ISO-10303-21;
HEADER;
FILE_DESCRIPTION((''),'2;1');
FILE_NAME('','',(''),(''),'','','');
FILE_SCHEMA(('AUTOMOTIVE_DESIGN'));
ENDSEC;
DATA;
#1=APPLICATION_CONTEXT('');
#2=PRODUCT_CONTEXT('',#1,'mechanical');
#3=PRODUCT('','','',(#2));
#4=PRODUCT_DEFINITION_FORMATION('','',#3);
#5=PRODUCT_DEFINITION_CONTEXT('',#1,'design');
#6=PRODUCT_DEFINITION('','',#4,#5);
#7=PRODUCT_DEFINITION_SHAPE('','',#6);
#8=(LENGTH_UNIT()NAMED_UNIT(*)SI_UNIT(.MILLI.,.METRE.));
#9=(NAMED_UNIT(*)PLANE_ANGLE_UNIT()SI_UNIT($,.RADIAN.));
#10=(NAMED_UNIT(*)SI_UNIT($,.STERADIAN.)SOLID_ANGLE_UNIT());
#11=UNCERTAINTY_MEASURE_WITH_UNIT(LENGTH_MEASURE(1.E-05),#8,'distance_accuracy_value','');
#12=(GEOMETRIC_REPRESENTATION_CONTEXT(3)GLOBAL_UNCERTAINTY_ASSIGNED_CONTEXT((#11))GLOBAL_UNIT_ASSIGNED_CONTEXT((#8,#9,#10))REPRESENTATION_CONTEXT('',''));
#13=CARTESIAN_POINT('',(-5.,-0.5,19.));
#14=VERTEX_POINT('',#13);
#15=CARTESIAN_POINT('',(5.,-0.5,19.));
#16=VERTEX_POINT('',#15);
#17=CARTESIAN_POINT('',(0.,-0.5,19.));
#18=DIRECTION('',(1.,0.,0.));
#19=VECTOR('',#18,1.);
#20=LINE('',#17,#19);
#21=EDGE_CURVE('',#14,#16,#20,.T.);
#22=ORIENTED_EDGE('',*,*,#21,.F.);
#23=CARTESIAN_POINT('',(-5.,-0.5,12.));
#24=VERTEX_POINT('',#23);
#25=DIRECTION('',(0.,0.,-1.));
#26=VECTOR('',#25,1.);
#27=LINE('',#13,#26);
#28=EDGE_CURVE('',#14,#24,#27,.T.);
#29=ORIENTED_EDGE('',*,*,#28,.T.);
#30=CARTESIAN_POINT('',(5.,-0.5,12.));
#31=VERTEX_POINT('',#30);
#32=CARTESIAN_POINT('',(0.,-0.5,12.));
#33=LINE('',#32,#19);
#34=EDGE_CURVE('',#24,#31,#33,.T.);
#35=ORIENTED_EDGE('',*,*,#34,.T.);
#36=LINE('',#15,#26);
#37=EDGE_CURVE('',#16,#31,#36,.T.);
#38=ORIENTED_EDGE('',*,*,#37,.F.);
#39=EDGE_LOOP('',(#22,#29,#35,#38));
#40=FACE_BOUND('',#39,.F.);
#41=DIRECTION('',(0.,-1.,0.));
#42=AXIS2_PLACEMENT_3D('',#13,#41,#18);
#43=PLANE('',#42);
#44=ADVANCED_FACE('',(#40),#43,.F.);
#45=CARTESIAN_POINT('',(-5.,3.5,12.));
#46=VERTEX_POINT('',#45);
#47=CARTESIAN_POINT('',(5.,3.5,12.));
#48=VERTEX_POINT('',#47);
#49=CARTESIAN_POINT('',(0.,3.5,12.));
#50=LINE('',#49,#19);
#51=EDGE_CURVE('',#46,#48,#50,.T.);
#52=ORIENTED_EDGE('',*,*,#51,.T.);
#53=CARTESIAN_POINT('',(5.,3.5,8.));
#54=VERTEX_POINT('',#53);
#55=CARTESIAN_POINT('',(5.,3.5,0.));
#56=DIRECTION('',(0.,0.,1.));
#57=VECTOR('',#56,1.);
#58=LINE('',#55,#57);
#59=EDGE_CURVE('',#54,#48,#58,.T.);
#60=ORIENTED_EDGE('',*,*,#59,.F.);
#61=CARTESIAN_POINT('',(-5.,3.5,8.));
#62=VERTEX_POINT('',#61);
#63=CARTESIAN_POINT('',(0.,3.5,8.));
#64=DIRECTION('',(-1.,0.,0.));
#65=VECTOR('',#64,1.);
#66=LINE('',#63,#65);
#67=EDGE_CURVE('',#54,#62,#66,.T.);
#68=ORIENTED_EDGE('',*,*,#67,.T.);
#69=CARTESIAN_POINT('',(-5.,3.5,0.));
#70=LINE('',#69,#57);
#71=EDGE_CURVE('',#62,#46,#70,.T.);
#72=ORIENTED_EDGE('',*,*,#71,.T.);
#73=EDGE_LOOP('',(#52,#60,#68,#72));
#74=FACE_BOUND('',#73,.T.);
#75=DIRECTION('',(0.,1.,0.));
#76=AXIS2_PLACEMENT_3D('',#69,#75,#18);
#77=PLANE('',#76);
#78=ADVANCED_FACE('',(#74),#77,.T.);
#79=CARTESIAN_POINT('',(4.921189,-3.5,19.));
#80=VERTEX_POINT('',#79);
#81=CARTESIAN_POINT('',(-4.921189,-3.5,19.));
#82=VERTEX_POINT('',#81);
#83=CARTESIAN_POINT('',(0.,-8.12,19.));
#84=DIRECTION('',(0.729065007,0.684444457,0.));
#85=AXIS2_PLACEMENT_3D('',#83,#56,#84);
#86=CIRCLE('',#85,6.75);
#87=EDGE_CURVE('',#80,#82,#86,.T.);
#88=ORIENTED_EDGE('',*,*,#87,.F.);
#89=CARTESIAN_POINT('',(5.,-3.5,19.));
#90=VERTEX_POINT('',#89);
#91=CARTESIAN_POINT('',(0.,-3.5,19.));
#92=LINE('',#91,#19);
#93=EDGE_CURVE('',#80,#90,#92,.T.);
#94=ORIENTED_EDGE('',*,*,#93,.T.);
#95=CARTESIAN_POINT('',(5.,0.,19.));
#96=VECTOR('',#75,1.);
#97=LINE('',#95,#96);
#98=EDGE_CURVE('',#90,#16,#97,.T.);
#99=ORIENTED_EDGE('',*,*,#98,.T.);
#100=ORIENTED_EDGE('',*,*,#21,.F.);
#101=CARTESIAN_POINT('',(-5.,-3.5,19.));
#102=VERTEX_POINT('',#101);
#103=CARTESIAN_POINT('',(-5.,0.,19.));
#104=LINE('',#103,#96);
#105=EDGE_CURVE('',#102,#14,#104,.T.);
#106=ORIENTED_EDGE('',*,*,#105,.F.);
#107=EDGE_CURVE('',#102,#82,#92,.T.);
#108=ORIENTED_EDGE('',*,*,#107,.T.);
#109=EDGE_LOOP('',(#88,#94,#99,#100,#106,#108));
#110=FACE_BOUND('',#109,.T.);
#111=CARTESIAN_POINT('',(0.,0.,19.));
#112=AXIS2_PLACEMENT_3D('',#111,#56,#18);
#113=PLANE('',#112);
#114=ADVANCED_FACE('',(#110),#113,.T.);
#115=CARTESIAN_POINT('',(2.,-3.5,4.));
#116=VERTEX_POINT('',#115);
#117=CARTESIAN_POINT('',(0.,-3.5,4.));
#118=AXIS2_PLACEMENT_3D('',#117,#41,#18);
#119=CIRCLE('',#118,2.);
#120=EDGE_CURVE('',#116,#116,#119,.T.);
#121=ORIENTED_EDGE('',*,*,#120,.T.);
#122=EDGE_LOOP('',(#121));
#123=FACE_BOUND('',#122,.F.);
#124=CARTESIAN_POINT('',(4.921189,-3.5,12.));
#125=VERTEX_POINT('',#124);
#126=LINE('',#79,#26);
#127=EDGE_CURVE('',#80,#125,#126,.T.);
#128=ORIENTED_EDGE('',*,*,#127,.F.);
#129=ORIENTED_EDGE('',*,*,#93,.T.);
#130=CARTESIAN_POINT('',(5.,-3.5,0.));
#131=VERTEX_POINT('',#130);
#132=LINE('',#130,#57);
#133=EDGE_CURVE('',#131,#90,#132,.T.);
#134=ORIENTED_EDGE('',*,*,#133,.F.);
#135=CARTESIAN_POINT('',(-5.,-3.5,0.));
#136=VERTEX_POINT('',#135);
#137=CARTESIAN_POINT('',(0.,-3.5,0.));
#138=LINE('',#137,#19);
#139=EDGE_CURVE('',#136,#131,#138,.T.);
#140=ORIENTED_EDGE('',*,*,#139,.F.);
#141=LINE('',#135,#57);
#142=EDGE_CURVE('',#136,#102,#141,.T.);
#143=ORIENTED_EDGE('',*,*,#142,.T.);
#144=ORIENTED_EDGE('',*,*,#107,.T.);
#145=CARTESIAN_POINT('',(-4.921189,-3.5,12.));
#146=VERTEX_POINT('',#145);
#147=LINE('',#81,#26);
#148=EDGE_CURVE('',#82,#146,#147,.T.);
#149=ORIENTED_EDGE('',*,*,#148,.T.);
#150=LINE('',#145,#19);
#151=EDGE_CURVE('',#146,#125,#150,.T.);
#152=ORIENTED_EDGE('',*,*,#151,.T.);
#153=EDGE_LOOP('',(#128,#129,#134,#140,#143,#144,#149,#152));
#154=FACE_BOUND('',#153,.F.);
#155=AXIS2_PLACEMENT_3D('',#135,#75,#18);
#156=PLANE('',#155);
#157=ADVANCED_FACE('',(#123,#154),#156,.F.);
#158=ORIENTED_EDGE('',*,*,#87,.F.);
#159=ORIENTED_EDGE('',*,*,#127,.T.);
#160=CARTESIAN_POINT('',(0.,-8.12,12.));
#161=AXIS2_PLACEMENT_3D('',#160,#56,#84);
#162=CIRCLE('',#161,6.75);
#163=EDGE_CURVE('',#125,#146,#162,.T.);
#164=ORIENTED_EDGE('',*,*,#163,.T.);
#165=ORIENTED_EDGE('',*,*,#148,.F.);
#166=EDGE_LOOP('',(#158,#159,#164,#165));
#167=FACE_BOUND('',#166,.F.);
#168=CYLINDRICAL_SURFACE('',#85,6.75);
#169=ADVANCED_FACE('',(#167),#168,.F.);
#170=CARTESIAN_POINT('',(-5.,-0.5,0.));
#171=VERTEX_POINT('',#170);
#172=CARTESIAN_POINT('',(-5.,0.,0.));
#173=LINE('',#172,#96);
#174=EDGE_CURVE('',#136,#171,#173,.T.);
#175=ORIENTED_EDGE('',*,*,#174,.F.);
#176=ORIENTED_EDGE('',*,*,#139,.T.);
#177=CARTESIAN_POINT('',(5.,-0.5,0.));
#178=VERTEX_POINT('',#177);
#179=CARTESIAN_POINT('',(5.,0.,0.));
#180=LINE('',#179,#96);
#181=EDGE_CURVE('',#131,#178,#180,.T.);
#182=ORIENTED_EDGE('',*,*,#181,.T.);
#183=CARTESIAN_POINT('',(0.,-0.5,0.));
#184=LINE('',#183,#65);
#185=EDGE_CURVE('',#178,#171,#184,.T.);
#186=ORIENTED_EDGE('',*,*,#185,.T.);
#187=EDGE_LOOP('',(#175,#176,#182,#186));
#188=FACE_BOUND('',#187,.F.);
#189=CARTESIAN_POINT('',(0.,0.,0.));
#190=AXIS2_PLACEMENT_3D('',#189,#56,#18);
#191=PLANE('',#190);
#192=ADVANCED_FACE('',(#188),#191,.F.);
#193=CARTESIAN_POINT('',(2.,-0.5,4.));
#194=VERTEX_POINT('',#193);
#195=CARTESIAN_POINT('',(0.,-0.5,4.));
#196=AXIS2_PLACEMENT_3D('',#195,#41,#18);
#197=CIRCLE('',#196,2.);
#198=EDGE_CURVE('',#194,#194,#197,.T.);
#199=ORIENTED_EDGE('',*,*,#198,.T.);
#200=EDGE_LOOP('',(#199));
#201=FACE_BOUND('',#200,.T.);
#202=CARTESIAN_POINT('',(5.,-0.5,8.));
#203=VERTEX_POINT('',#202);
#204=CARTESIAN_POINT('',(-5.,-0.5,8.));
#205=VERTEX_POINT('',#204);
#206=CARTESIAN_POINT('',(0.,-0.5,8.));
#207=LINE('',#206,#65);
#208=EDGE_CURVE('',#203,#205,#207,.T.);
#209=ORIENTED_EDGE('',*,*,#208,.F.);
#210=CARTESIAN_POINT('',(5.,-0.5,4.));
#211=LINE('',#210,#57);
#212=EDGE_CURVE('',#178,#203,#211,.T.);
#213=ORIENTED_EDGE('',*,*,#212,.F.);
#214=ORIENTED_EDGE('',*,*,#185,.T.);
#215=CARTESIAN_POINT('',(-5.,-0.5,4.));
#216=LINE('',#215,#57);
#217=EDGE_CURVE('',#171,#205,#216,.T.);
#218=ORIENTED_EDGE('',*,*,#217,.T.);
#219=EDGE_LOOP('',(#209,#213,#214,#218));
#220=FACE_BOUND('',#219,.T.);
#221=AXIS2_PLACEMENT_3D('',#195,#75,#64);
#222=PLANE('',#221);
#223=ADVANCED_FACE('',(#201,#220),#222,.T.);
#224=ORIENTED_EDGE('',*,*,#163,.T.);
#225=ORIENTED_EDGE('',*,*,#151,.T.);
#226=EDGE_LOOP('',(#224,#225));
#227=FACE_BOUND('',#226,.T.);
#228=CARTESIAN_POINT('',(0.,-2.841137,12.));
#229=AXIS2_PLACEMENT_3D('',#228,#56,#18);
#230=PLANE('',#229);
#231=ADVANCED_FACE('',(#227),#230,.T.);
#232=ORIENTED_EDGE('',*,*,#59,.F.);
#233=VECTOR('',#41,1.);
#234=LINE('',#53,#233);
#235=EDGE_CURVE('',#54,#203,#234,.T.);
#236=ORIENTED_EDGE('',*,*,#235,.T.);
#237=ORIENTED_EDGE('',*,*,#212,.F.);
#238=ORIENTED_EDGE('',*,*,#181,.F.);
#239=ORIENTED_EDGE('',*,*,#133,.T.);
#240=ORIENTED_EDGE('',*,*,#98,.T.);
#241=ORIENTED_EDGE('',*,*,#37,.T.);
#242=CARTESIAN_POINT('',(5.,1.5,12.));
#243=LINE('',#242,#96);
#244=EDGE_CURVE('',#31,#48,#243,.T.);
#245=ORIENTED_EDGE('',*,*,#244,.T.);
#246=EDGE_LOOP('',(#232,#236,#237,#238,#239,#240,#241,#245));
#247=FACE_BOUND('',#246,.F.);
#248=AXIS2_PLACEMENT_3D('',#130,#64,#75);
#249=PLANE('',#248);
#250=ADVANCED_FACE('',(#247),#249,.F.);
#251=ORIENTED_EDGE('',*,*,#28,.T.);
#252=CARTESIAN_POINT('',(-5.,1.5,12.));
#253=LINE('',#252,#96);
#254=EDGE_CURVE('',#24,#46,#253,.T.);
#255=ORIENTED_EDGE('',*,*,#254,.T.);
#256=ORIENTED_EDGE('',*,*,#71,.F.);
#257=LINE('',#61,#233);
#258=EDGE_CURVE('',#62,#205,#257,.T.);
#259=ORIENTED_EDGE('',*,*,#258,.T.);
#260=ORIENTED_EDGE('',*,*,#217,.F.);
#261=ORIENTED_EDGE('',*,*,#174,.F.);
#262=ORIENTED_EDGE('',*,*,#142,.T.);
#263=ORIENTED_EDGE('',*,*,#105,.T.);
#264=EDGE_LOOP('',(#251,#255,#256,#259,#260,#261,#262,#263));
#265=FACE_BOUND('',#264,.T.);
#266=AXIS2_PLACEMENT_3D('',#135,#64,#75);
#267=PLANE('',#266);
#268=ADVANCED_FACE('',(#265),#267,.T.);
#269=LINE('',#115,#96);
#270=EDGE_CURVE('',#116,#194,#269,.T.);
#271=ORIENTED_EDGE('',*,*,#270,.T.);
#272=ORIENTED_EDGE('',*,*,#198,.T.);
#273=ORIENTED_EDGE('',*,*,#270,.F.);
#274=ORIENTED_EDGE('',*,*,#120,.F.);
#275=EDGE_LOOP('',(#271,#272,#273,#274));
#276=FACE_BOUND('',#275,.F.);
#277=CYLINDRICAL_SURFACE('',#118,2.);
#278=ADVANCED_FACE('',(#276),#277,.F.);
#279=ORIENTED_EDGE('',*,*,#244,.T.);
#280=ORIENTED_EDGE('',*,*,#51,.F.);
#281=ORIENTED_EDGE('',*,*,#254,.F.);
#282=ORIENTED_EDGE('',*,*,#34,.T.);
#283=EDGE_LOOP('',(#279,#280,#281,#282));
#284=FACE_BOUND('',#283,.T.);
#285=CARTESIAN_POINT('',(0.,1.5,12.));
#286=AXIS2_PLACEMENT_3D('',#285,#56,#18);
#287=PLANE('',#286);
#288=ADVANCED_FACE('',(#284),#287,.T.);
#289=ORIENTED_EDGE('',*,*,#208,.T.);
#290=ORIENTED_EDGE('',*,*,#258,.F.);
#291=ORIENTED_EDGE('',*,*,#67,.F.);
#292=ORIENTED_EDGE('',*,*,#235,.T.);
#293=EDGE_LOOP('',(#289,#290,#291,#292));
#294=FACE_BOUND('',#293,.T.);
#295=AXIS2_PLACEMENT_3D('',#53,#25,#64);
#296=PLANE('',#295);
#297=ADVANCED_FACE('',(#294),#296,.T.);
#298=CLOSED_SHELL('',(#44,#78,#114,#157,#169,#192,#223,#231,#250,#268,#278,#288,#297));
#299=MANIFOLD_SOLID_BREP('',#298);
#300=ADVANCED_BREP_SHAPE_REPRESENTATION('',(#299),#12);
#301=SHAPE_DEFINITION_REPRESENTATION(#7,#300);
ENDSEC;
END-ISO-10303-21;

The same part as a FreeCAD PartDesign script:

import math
import FreeCAD as App
import Part
import Sketcher

doc = App.newDocument("Part")
body = doc.addObject("PartDesign::Body", "Body")

sketch1 = body.newObject("Sketcher::SketchObject", "Sketch")
sketch1.AttachmentSupport = (doc.getObject("XY_Plane"), [""])
sketch1.MapMode = "FlatFace"
sketch1.addGeometry([
    Part.LineSegment(App.Vector(-5, 4, 0), App.Vector(-5, -4, 0)),
    Part.LineSegment(App.Vector(-5, -4, 0), App.Vector(5, -4, 0)),
    Part.LineSegment(App.Vector(5, -4, 0), App.Vector(5, 4, 0)),
    Part.LineSegment(App.Vector(5, 4, 0), App.Vector(-5, 4, 0)),
], False)
sketch1.addConstraint([
    Sketcher.Constraint("Coincident", 0, 2, 1, 1),
    Sketcher.Constraint("Coincident", 1, 2, 2, 1),
    Sketcher.Constraint("Coincident", 2, 2, 3, 1),
    Sketcher.Constraint("Coincident", 3, 2, 0, 1),
    Sketcher.Constraint("Vertical", 0),
    Sketcher.Constraint("Horizontal", 1),
    Sketcher.Constraint("Vertical", 2),
    Sketcher.Constraint("Horizontal", 3),
    Sketcher.Constraint("Symmetric", 0, 2, 2, 2, -1, 1),
    Sketcher.Constraint("DistanceX", 1, 1, 1, 2, 10.0),
    Sketcher.Constraint("DistanceY", 0, 2, 0, 1, 7.0),
])
pad1 = body.newObject("PartDesign::Pad", "Pad")
pad1.Profile = sketch1
pad1.Length = 19

sketch2 = body.newObject("Sketcher::SketchObject", "Sketch001")
sketch2.AttachmentSupport = (doc.getObject("XY_Plane"), [""])
sketch2.MapMode = "FlatFace"
sketch2.AttachmentOffset = App.Placement(App.Vector(0, 0, 19), App.Rotation())
sketch2.addGeometry([
    Part.LineSegment(App.Vector(-4.9, -3.5, 0), App.Vector(4.9, -3.5, 0)),
    Part.ArcOfCircle(Part.Circle(App.Vector(0, -8.1, 0), App.Vector(0, 0, 1), 6.8), math.radians(43), math.radians(137)),
    Part.LineSegment(App.Vector(-5, 3.5, 0), App.Vector(-5, -0.5, 0)),
    Part.LineSegment(App.Vector(-5, -0.5, 0), App.Vector(5, -0.5, 0)),
    Part.LineSegment(App.Vector(5, -0.5, 0), App.Vector(5, 3.5, 0)),
    Part.LineSegment(App.Vector(5, 3.5, 0), App.Vector(-5, 3.5, 0)),
], False)
sketch2.addConstraint([
    Sketcher.Constraint("Coincident", 0, 1, 1, 2),
    Sketcher.Constraint("Coincident", 1, 1, 0, 2),
    Sketcher.Constraint("Coincident", 2, 2, 3, 1),
    Sketcher.Constraint("Coincident", 3, 2, 4, 1),
    Sketcher.Constraint("Coincident", 4, 2, 5, 1),
    Sketcher.Constraint("Coincident", 5, 2, 2, 1),
    Sketcher.Constraint("Horizontal", 0),
    Sketcher.Constraint("Vertical", 2),
    Sketcher.Constraint("Horizontal", 3),
    Sketcher.Constraint("Vertical", 4),
    Sketcher.Constraint("Horizontal", 5),
    Sketcher.Constraint("PointOnObject", 1, 3, -2),
    Sketcher.Constraint("DistanceX", 3, 1, 3, 2, 10.0),
    Sketcher.Constraint("DistanceY", 2, 2, 2, 1, 4.0),
    Sketcher.Constraint("Radius", 1, 6.75),
    Sketcher.Constraint("DistanceX", 2, 2, -1, 1, 5.0),
    Sketcher.Constraint("DistanceY", 0, 1, 2, 2, 3.0),
    Sketcher.Constraint("DistanceY", 0, 1, -1, 1, 3.5),
    Sketcher.Constraint("DistanceY", 1, 3, -1, 1, 8.12),
])
pocket1 = body.newObject("PartDesign::Pocket", "Pocket")
pocket1.Profile = sketch2
pocket1.Length = 7

sketch3 = body.newObject("Sketcher::SketchObject", "Sketch002")
sketch3.AttachmentSupport = (doc.getObject("XZ_Plane"), [""])
sketch3.MapMode = "FlatFace"
sketch3.AttachmentOffset = App.Placement(App.Vector(0, 0, 3.5), App.Rotation())
sketch3.addGeometry(Part.Circle(App.Vector(0, 4, 0), App.Vector(0, 0, 1), 2), False)
sketch3.addConstraint([
    Sketcher.Constraint("PointOnObject", 0, 3, -2),
    Sketcher.Constraint("Diameter", 0, 4.0),
    Sketcher.Constraint("DistanceY", -1, 1, 0, 3, 4.0),
])
pocket2 = body.newObject("PartDesign::Pocket", "Pocket001")
pocket2.Profile = sketch3
pocket2.Type = "ThroughAll"

sketch4 = body.newObject("Sketcher::SketchObject", "Sketch003")
sketch4.AttachmentSupport = (doc.getObject("XZ_Plane"), [""])
sketch4.MapMode = "FlatFace"
sketch4.AttachmentOffset = App.Placement(App.Vector(0, 0, -3.5), App.Rotation())
sketch4.addGeometry([
    Part.LineSegment(App.Vector(5, 8, 0), App.Vector(5, 0, 0)),
    Part.LineSegment(App.Vector(5, 0, 0), App.Vector(-5, 0, 0)),
    Part.LineSegment(App.Vector(-5, 0, 0), App.Vector(-5, 8, 0)),
    Part.LineSegment(App.Vector(-5, 8, 0), App.Vector(5, 8, 0)),
], False)
sketch4.addConstraint([
    Sketcher.Constraint("Coincident", 0, 2, 1, 1),
    Sketcher.Constraint("Coincident", 1, 2, 2, 1),
    Sketcher.Constraint("Coincident", 2, 2, 3, 1),
    Sketcher.Constraint("Coincident", 3, 2, 0, 1),
    Sketcher.Constraint("Vertical", 0),
    Sketcher.Constraint("Horizontal", 1),
    Sketcher.Constraint("Vertical", 2),
    Sketcher.Constraint("Horizontal", 3),
    Sketcher.Constraint("Symmetric", 0, 2, 1, 2, -1, 1),
    Sketcher.Constraint("DistanceX", 1, 2, 1, 1, 10.0),
    Sketcher.Constraint("DistanceY", 0, 2, 0, 1, 8.0),
])
pocket3 = body.newObject("PartDesign::Pocket", "Pocket002")
pocket3.Profile = sketch4
pocket3.Length = 4
pocket3.Reversed = True

doc.recompute()
